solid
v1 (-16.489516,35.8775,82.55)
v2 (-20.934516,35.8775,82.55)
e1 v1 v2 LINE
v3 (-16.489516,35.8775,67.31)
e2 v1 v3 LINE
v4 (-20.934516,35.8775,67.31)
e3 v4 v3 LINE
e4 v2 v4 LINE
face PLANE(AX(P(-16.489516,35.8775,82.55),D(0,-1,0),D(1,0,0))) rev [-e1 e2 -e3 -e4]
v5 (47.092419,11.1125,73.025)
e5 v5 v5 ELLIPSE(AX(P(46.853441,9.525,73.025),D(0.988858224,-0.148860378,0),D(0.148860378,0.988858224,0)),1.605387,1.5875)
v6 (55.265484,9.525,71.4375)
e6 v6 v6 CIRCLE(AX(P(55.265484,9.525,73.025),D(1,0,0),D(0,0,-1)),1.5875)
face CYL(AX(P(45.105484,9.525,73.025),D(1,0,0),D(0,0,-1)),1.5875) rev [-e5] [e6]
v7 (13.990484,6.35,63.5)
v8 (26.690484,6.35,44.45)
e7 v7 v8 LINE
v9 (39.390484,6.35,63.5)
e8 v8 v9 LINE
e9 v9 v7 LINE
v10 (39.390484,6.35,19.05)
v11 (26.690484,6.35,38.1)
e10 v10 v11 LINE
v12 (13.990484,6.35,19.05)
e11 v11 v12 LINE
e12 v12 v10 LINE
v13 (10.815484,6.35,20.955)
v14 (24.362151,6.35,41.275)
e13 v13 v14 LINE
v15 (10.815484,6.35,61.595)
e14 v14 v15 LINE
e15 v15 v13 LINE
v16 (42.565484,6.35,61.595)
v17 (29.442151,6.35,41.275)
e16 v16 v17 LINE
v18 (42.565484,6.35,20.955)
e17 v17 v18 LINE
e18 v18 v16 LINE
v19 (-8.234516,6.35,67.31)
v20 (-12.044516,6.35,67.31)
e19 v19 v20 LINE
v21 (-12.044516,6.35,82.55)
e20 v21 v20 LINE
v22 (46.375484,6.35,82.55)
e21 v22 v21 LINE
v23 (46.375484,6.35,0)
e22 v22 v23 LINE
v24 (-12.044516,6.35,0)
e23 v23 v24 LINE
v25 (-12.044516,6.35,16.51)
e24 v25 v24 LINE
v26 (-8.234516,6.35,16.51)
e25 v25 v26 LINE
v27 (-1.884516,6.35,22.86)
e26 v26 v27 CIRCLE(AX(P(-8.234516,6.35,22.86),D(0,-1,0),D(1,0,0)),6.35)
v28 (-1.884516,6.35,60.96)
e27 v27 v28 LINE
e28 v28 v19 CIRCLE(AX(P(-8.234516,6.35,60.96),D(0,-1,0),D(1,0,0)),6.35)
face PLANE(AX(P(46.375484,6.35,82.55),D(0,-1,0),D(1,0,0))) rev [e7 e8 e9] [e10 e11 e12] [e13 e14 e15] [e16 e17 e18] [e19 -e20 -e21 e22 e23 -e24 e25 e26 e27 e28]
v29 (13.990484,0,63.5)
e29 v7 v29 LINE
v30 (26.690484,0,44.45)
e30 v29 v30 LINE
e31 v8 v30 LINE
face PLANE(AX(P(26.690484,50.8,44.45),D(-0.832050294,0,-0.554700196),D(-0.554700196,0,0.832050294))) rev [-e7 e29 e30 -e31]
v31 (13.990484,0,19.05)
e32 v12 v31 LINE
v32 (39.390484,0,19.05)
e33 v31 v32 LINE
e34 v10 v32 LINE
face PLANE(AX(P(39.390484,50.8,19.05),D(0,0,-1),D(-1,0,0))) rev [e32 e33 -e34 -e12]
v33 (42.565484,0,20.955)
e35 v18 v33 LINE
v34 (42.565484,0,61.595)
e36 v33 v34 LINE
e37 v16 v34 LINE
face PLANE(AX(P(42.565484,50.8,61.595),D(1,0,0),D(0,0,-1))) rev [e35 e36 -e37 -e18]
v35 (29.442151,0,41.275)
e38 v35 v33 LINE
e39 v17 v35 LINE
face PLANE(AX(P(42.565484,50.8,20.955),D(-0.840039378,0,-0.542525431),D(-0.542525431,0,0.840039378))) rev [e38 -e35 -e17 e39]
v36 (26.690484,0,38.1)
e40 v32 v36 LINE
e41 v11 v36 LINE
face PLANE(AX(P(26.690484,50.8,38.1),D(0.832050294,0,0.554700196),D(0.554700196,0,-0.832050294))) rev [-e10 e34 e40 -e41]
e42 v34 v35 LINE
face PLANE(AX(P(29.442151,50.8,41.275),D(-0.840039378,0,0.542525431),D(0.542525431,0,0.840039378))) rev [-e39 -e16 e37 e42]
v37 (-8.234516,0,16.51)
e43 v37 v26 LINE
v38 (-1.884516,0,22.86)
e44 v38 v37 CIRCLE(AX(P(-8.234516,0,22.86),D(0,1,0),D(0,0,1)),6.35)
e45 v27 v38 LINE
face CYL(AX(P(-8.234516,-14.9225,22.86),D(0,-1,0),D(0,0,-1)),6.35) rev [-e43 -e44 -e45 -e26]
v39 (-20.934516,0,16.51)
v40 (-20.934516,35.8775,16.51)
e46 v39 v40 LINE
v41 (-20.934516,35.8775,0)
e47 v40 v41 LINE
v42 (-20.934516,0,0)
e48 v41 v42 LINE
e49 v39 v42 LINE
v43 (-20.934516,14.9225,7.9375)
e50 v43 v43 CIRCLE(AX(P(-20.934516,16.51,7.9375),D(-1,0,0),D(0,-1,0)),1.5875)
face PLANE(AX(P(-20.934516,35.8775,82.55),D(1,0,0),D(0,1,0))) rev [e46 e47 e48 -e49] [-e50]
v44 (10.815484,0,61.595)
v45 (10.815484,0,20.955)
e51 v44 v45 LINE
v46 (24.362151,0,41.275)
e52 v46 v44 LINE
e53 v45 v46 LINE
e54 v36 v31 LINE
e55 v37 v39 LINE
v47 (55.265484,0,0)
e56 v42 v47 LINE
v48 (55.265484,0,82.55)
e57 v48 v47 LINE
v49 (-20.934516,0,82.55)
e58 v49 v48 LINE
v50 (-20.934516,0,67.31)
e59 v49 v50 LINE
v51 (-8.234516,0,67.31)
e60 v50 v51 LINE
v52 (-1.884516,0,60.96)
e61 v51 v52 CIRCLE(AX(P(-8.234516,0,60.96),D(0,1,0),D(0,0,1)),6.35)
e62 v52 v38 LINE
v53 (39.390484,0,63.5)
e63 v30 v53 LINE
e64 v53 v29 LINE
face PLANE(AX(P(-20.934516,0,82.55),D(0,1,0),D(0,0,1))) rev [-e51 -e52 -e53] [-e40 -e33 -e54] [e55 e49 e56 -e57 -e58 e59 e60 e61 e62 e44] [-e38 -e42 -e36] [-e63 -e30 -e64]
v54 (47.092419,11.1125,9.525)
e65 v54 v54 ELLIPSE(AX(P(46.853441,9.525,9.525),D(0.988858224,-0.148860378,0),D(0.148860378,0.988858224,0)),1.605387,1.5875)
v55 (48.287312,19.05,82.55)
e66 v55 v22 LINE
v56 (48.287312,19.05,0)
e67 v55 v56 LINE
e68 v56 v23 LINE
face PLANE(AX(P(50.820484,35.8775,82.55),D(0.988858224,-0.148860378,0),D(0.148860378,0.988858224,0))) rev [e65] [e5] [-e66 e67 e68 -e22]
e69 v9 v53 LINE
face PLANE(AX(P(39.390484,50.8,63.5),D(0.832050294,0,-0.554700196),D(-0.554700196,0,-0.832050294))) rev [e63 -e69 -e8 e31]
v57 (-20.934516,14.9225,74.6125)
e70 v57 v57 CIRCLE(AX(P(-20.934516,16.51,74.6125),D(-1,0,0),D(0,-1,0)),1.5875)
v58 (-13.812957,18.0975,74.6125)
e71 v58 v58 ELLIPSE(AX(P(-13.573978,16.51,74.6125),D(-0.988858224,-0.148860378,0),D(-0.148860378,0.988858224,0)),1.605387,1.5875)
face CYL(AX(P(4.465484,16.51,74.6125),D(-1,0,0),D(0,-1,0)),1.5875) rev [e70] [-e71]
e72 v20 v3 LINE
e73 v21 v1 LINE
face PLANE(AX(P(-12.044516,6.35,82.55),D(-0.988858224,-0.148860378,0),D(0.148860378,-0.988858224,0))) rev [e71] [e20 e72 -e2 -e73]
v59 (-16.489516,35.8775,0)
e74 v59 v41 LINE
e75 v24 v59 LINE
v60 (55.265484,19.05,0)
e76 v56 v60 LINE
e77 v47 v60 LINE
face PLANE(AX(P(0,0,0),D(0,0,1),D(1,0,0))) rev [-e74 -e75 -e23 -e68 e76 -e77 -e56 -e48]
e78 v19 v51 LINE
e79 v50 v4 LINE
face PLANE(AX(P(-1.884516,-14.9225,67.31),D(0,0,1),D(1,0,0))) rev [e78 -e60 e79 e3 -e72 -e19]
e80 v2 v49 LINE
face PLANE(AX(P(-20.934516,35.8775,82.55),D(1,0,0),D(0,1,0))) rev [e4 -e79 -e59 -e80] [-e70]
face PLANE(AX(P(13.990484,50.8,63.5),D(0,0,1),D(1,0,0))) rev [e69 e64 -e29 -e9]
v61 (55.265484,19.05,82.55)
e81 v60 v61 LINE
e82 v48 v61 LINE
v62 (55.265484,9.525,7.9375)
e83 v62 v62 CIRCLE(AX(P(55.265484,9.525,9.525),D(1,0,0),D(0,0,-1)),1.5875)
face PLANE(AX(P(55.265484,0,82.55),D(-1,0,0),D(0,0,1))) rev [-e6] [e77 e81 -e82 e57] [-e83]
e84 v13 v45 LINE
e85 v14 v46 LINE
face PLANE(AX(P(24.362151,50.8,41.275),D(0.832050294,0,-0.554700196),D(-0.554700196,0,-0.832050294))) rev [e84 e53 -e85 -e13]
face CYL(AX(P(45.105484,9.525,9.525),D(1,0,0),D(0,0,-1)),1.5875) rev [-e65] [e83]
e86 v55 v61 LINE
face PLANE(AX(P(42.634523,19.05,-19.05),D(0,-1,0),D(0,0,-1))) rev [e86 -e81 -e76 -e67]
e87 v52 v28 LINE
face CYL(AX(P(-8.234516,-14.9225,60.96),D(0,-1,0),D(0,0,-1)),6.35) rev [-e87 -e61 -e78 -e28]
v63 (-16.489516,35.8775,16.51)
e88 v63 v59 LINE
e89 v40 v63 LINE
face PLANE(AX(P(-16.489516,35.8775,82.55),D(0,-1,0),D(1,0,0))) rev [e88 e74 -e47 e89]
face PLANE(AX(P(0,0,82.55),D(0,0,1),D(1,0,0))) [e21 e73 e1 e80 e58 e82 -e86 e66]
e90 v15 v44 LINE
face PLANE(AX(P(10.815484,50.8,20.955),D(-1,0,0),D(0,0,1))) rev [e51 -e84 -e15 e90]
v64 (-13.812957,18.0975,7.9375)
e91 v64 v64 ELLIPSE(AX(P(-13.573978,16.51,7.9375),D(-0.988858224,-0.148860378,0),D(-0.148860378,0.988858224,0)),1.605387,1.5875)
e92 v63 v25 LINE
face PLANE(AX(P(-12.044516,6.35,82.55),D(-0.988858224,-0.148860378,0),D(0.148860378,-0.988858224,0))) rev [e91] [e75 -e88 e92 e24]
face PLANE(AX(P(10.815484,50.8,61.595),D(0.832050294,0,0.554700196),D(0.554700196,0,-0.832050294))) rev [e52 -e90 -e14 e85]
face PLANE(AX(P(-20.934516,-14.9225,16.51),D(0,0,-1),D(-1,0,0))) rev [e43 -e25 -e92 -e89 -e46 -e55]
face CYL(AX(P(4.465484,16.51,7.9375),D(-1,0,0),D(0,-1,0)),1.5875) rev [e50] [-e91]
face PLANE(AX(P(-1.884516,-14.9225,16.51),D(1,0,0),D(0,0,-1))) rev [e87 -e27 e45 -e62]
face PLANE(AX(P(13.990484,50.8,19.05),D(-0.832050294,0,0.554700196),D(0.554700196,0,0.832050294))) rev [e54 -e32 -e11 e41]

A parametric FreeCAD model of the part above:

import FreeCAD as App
import Part
import Sketcher

V = App.Vector
Q = App.Units.Quantity


def edges_at(feature, points):
    """Names of the edges that pass closest to the given points."""
    edges = feature.Shape.Edges
    near = lambda p: min(range(len(edges)), key=lambda i: edges[i].distToShape(Part.Vertex(*p))[0])
    return sorted({f"Edge{near(p) + 1}" for p in points})


def add_polygon(sketch, points):
    """Adds a closed chain of lines whose ends are joined by coincident constraints."""
    first, n = sketch.GeometryCount, len(points)
    for a, b in zip(points, points[1:] + points[:1]):
        sketch.addGeometry(Part.LineSegment(App.Vector(*a, 0), App.Vector(*b, 0)), False)
    for i in range(n):
        sketch.addConstraint(Sketcher.Constraint("Coincident", first + i, 2, first + (i + 1) % n, 1))

doc = App.newDocument("Part")
params = doc.addObject("Spreadsheet::Sheet", "Params")
for row, (alias, value) in enumerate([
    ("sketch1_width", "3 in"),
    ("sketch1_width2", "2.3 in"),
    ("sketch1_width3", "0.175 in"),
    ("pad1_length", "3.25 in"),
    ("sketch2_height", "2 in"),
    ("sketch2_width", "0.75 in"),
    ("pocket1_length", "2 in"),
    ("fillet_radius", "0.25 in"),
    ("pocket2_length", "4 in"),
    ("sketch4_width", "1 in"),
    ("sketch4_height", "1.6 in"),
    ("pocket3_length", "2 in"),
    ("sketch5_diameter", "0.125 in"),
    ("pocket4_length", "1 in"),
    ("sketch6_diameter", "0.125 in"),
    ("pocket5_length", "0.4 in"),
], start=1):
    params.set(f"A{row}", alias)
    params.set(f"B{row}", "=" + value)
    params.setAlias(f"B{row}", alias)

body = doc.addObject("PartDesign::Body", "Body")

# Sketch on XY plane
sketch1 = body.newObject("Sketcher::SketchObject", "Sketch")
sketch1.AttachmentSupport = (doc.getObject("XY_Plane"), [""])
sketch1.MapMode = "FlatFace"
add_polygon(sketch1, [(-20.9, 0), (55.3, 0), (55.3, 35.9), (50.8, 35.9), (46.4, 6.3), (-12, 6.3), (-16.5, 35.9), (-20.9, 35.9)])  # lines 0-7
sketch1.addConstraint([
    Sketcher.Constraint("Horizontal", 0),
    Sketcher.Constraint("Vertical", 1),
    Sketcher.Constraint("Horizontal", 2),
    Sketcher.Constraint("Horizontal", 4),
    Sketcher.Constraint("Horizontal", 6),
    Sketcher.Constraint("Vertical", 7),
    Sketcher.Constraint("PointOnObject", 0, 2, -1),
    Sketcher.Constraint("Horizontal", 2, 2, 5, 2),
    Sketcher.Constraint("Equal", 2, 6),
    Sketcher.Constraint("Equal", 3, 5),
    Sketcher.Constraint("DistanceX", 0, 1, 0, 2, Q("3 in")),
    Sketcher.Constraint("DistanceX", 4, 2, 4, 1, Q("2.3 in")),
    Sketcher.Constraint("DistanceX", 2, 2, 2, 1, Q("0.175 in")),
    Sketcher.Constraint("DistanceY", -1, 1, 3, 2, Q("0.25 in")),
    Sketcher.Constraint("DistanceY", 1, 1, 1, 2, Q("1.4125 in")),
    Sketcher.Constraint("DistanceX", -1, 1, 0, 2, 55.265484),
])
sketch1.setExpression("Constraints[18]", "Params.sketch1_width")
sketch1.setExpression("Constraints[19]", "Params.sketch1_width2")
sketch1.setExpression("Constraints[20]", "Params.sketch1_width3")
pad1 = body.newObject("PartDesign::Pad", "Pad")
pad1.Profile = sketch1
pad1.setExpression("Length", "Params.pad1_length")

# Sketch on XZ plane
sketch2 = body.newObject("Sketcher::SketchObject", "Sketch001")
sketch2.AttachmentSupport = (doc.getObject("XZ_Plane"), [""])
sketch2.MapMode = "FlatFace"
sketch2.AttachmentOffset = App.Placement(V(0, 0, -1.4125 * 25.4), App.Rotation())
add_polygon(sketch2, [(-2, 17), (-21, 17), (-21, 67), (-2, 67)])  # lines 0-3
sketch2.addConstraint([
    Sketcher.Constraint("Horizontal", 0),
    Sketcher.Constraint("Vertical", 1),
    Sketcher.Constraint("Horizontal", 2),
    Sketcher.Constraint("Vertical", 3),
    Sketcher.Constraint("DistanceY", 1, 1, 1, 2, Q("2 in")),
    Sketcher.Constraint("DistanceX", 0, 2, 0, 1, Q("0.75 in")),
    Sketcher.Constraint("DistanceY", -1, 1, 0, 2, Q("0.65 in")),
    Sketcher.Constraint("DistanceX", 0, 2, -1, 1, 20.934516),
])
sketch2.setExpression("Constraints[8]", "Params.sketch2_height")
sketch2.setExpression("Constraints[9]", "Params.sketch2_width")
pocket1 = body.newObject("PartDesign::Pocket", "Pocket")
pocket1.Profile = sketch2
pocket1.setExpression("Length", "Params.pocket1_length")
pocket1.Reversed = True
doc.recompute()

fillet = body.newObject("PartDesign::Fillet", "Fillet")
fillet.Base = (pocket1, edges_at(pocket1, [(-1.885, 3.175, 16.51), (-1.885, 3.175, 67.31)]))
fillet.setExpression("Radius", "Params.fillet_radius")

# Sketch on XY plane
sketch3 = body.newObject("Sketcher::SketchObject", "Sketch002")
sketch3.AttachmentSupport = (doc.getObject("XY_Plane"), [""])
sketch3.MapMode = "FlatFace"
sketch3.AttachmentOffset = App.Placement(V(0, 0, 3.25 * 25.4), App.Rotation())
add_polygon(sketch3, [(43, 41), (43, 19), (61, 19), (61, 41)])  # lines 0-3
sketch3.addConstraint([
    Sketcher.Constraint("Vertical", 0),
    Sketcher.Constraint("Horizontal", 1),
    Sketcher.Constraint("Vertical", 2),
    Sketcher.Constraint("Horizontal", 3),
    Sketcher.Constraint("DistanceY", -1, 1, 0, 2, Q("0.75 in")),
    Sketcher.Constraint("DistanceX", 1, 1, 1, 2, 18.816678),
    Sketcher.Constraint("DistanceX", -1, 1, 1, 2, 61.451201),
    Sketcher.Constraint("DistanceY", 0, 2, 0, 1, 21.857758),
])
pocket2 = body.newObject("PartDesign::Pocket", "Pocket001")
pocket2.Profile = sketch3
pocket2.setExpression("Length", "Params.pocket2_length")

# Sketch on XZ plane
sketch4 = body.newObject("Sketcher::SketchObject", "Sketch003")
sketch4.AttachmentSupport = (doc.getObject("XZ_Plane"), [""])
sketch4.MapMode = "FlatFace"
add_polygon(sketch4, [(39, 64), (14, 64), (27, 44)])  # lines 0-2
add_polygon(sketch4, [(24, 41), (11, 62), (11, 21)])  # lines 3-5
add_polygon(sketch4, [(43, 21), (43, 62), (29, 41)])  # lines 6-8
add_polygon(sketch4, [(27, 38), (14, 19), (39, 19)])  # lines 9-11
sketch4.addConstraint([
    Sketcher.Constraint("Horizontal", 0),
    Sketcher.Constraint("Vertical", 4),
    Sketcher.Constraint("Vertical", 6),
    Sketcher.Constraint("Horizontal", 10),
    Sketcher.Constraint("Parallel", 1, 3),
    Sketcher.Constraint("Parallel", 2, 5),
    Sketcher.Constraint("Parallel", 5, 9),
    Sketcher.Constraint("Parallel", 3, 11),
    Sketcher.Constraint("Horizontal", 3, 2, 6, 2),
    Sketcher.Constraint("Horizontal", 5, 2, 7, 2),
    Sketcher.Constraint("Horizontal", 4, 2, 8, 2),
    Sketcher.Constraint("Vertical", 0, 2, 9, 2),
    Sketcher.Constraint("Vertical", 2, 2, 10, 2),
    Sketcher.Constraint("Vertical", 1, 2, 11, 2),
    Sketcher.Constraint("DistanceX", 0, 2, 0, 1, Q("1 in")),
    Sketcher.Constraint("DistanceY", 4, 2, 4, 1, Q("1.6 in")),
    Sketcher.Constraint("DistanceY", 9, 2, 1, 2, Q("1 in")),
    Sketcher.Constraint("DistanceY", -1, 1, 0, 2, Q("2.5 in")),
    Sketcher.Constraint("DistanceX", 5, 2, 7, 2, Q("0.2 in")),
    Sketcher.Constraint("DistanceY", -1, 1, 1, 2, Q("1.75 in")),
    Sketcher.Constraint("DistanceX", 3, 2, 6, 2, Q("1.25 in")),
    Sketcher.Constraint("DistanceY", -1, 1, 3, 2, Q("2.425 in")),
    Sketcher.Constraint("DistanceX", 3, 2, 0, 2, Q("0.125 in")),
    Sketcher.Constraint("DistanceX", -1, 1, 5, 2, 24.362151),
])
sketch4.setExpression("Constraints[26]", "Params.sketch4_width")
sketch4.setExpression("Constraints[27]", "Params.sketch4_height")
pocket3 = body.newObject("PartDesign::Pocket", "Pocket002")
pocket3.Profile = sketch4
pocket3.setExpression("Length", "Params.pocket3_length")

# Sketch on YZ plane
sketch5 = body.newObject("Sketcher::SketchObject", "Sketch004")
sketch5.AttachmentSupport = (doc.getObject("YZ_Plane"), [""])
sketch5.MapMode = "FlatFace"
sketch5.AttachmentOffset = App.Placement(V(0, 0, -20.934516), App.Rotation())
sketch5.addGeometry([
    Part.Circle(V(16.5, 7.9, 0), V(0, 0, 1), 1.6),
    Part.Circle(V(16.5, 74.6, 0), V(0, 0, 1), 1.6),
], False)
sketch5.addConstraint([
    Sketcher.Constraint("Equal", 0, 1),
    Sketcher.Constraint("Vertical", 0, 3, 1, 3),
    Sketcher.Constraint("Diameter", 0, Q("0.125 in")),
    Sketcher.Constraint("DistanceX", -1, 1, 0, 3, Q("0.65 in")),
    Sketcher.Constraint("DistanceY", -1, 1, 0, 3, Q("0.3125 in")),
    Sketcher.Constraint("DistanceY", -1, 1, 1, 3, Q("2.9375 in")),
])
sketch5.setExpression("Constraints[2]", "Params.sketch5_diameter")
pocket4 = body.newObject("PartDesign::Pocket", "Pocket003")
pocket4.Profile = sketch5
pocket4.setExpression("Length", "Params.pocket4_length")
pocket4.Reversed = True

# Sketch on YZ plane
sketch6 = body.newObject("Sketcher::SketchObject", "Sketch005")
sketch6.AttachmentSupport = (doc.getObject("YZ_Plane"), [""])
sketch6.MapMode = "FlatFace"
sketch6.AttachmentOffset = App.Placement(V(0, 0, 55.265484), App.Rotation())
sketch6.addGeometry([
    Part.Circle(V(9.5, 9.5, 0), V(0, 0, 1), 1.6),
    Part.Circle(V(9.5, 73, 0), V(0, 0, 1), 1.6),
], False)
sketch6.addConstraint([
    Sketcher.Constraint("Equal", 0, 1),
    Sketcher.Constraint("Vertical", 0, 3, 1, 3),
    Sketcher.Constraint("Diameter", 0, Q("0.125 in")),
    Sketcher.Constraint("DistanceY", 0, 3, 1, 3, Q("2.5 in")),
    Sketcher.Constraint("DistanceX", -1, 1, 0, 3, Q("0.375 in")),
    Sketcher.Constraint("DistanceY", -1, 1, 0, 3, Q("0.375 in")),
])
sketch6.setExpression("Constraints[2]", "Params.sketch6_diameter")
pocket5 = body.newObject("PartDesign::Pocket", "Pocket004")
pocket5.Profile = sketch6
pocket5.setExpression("Length", "Params.pocket5_length")

doc.recompute()
